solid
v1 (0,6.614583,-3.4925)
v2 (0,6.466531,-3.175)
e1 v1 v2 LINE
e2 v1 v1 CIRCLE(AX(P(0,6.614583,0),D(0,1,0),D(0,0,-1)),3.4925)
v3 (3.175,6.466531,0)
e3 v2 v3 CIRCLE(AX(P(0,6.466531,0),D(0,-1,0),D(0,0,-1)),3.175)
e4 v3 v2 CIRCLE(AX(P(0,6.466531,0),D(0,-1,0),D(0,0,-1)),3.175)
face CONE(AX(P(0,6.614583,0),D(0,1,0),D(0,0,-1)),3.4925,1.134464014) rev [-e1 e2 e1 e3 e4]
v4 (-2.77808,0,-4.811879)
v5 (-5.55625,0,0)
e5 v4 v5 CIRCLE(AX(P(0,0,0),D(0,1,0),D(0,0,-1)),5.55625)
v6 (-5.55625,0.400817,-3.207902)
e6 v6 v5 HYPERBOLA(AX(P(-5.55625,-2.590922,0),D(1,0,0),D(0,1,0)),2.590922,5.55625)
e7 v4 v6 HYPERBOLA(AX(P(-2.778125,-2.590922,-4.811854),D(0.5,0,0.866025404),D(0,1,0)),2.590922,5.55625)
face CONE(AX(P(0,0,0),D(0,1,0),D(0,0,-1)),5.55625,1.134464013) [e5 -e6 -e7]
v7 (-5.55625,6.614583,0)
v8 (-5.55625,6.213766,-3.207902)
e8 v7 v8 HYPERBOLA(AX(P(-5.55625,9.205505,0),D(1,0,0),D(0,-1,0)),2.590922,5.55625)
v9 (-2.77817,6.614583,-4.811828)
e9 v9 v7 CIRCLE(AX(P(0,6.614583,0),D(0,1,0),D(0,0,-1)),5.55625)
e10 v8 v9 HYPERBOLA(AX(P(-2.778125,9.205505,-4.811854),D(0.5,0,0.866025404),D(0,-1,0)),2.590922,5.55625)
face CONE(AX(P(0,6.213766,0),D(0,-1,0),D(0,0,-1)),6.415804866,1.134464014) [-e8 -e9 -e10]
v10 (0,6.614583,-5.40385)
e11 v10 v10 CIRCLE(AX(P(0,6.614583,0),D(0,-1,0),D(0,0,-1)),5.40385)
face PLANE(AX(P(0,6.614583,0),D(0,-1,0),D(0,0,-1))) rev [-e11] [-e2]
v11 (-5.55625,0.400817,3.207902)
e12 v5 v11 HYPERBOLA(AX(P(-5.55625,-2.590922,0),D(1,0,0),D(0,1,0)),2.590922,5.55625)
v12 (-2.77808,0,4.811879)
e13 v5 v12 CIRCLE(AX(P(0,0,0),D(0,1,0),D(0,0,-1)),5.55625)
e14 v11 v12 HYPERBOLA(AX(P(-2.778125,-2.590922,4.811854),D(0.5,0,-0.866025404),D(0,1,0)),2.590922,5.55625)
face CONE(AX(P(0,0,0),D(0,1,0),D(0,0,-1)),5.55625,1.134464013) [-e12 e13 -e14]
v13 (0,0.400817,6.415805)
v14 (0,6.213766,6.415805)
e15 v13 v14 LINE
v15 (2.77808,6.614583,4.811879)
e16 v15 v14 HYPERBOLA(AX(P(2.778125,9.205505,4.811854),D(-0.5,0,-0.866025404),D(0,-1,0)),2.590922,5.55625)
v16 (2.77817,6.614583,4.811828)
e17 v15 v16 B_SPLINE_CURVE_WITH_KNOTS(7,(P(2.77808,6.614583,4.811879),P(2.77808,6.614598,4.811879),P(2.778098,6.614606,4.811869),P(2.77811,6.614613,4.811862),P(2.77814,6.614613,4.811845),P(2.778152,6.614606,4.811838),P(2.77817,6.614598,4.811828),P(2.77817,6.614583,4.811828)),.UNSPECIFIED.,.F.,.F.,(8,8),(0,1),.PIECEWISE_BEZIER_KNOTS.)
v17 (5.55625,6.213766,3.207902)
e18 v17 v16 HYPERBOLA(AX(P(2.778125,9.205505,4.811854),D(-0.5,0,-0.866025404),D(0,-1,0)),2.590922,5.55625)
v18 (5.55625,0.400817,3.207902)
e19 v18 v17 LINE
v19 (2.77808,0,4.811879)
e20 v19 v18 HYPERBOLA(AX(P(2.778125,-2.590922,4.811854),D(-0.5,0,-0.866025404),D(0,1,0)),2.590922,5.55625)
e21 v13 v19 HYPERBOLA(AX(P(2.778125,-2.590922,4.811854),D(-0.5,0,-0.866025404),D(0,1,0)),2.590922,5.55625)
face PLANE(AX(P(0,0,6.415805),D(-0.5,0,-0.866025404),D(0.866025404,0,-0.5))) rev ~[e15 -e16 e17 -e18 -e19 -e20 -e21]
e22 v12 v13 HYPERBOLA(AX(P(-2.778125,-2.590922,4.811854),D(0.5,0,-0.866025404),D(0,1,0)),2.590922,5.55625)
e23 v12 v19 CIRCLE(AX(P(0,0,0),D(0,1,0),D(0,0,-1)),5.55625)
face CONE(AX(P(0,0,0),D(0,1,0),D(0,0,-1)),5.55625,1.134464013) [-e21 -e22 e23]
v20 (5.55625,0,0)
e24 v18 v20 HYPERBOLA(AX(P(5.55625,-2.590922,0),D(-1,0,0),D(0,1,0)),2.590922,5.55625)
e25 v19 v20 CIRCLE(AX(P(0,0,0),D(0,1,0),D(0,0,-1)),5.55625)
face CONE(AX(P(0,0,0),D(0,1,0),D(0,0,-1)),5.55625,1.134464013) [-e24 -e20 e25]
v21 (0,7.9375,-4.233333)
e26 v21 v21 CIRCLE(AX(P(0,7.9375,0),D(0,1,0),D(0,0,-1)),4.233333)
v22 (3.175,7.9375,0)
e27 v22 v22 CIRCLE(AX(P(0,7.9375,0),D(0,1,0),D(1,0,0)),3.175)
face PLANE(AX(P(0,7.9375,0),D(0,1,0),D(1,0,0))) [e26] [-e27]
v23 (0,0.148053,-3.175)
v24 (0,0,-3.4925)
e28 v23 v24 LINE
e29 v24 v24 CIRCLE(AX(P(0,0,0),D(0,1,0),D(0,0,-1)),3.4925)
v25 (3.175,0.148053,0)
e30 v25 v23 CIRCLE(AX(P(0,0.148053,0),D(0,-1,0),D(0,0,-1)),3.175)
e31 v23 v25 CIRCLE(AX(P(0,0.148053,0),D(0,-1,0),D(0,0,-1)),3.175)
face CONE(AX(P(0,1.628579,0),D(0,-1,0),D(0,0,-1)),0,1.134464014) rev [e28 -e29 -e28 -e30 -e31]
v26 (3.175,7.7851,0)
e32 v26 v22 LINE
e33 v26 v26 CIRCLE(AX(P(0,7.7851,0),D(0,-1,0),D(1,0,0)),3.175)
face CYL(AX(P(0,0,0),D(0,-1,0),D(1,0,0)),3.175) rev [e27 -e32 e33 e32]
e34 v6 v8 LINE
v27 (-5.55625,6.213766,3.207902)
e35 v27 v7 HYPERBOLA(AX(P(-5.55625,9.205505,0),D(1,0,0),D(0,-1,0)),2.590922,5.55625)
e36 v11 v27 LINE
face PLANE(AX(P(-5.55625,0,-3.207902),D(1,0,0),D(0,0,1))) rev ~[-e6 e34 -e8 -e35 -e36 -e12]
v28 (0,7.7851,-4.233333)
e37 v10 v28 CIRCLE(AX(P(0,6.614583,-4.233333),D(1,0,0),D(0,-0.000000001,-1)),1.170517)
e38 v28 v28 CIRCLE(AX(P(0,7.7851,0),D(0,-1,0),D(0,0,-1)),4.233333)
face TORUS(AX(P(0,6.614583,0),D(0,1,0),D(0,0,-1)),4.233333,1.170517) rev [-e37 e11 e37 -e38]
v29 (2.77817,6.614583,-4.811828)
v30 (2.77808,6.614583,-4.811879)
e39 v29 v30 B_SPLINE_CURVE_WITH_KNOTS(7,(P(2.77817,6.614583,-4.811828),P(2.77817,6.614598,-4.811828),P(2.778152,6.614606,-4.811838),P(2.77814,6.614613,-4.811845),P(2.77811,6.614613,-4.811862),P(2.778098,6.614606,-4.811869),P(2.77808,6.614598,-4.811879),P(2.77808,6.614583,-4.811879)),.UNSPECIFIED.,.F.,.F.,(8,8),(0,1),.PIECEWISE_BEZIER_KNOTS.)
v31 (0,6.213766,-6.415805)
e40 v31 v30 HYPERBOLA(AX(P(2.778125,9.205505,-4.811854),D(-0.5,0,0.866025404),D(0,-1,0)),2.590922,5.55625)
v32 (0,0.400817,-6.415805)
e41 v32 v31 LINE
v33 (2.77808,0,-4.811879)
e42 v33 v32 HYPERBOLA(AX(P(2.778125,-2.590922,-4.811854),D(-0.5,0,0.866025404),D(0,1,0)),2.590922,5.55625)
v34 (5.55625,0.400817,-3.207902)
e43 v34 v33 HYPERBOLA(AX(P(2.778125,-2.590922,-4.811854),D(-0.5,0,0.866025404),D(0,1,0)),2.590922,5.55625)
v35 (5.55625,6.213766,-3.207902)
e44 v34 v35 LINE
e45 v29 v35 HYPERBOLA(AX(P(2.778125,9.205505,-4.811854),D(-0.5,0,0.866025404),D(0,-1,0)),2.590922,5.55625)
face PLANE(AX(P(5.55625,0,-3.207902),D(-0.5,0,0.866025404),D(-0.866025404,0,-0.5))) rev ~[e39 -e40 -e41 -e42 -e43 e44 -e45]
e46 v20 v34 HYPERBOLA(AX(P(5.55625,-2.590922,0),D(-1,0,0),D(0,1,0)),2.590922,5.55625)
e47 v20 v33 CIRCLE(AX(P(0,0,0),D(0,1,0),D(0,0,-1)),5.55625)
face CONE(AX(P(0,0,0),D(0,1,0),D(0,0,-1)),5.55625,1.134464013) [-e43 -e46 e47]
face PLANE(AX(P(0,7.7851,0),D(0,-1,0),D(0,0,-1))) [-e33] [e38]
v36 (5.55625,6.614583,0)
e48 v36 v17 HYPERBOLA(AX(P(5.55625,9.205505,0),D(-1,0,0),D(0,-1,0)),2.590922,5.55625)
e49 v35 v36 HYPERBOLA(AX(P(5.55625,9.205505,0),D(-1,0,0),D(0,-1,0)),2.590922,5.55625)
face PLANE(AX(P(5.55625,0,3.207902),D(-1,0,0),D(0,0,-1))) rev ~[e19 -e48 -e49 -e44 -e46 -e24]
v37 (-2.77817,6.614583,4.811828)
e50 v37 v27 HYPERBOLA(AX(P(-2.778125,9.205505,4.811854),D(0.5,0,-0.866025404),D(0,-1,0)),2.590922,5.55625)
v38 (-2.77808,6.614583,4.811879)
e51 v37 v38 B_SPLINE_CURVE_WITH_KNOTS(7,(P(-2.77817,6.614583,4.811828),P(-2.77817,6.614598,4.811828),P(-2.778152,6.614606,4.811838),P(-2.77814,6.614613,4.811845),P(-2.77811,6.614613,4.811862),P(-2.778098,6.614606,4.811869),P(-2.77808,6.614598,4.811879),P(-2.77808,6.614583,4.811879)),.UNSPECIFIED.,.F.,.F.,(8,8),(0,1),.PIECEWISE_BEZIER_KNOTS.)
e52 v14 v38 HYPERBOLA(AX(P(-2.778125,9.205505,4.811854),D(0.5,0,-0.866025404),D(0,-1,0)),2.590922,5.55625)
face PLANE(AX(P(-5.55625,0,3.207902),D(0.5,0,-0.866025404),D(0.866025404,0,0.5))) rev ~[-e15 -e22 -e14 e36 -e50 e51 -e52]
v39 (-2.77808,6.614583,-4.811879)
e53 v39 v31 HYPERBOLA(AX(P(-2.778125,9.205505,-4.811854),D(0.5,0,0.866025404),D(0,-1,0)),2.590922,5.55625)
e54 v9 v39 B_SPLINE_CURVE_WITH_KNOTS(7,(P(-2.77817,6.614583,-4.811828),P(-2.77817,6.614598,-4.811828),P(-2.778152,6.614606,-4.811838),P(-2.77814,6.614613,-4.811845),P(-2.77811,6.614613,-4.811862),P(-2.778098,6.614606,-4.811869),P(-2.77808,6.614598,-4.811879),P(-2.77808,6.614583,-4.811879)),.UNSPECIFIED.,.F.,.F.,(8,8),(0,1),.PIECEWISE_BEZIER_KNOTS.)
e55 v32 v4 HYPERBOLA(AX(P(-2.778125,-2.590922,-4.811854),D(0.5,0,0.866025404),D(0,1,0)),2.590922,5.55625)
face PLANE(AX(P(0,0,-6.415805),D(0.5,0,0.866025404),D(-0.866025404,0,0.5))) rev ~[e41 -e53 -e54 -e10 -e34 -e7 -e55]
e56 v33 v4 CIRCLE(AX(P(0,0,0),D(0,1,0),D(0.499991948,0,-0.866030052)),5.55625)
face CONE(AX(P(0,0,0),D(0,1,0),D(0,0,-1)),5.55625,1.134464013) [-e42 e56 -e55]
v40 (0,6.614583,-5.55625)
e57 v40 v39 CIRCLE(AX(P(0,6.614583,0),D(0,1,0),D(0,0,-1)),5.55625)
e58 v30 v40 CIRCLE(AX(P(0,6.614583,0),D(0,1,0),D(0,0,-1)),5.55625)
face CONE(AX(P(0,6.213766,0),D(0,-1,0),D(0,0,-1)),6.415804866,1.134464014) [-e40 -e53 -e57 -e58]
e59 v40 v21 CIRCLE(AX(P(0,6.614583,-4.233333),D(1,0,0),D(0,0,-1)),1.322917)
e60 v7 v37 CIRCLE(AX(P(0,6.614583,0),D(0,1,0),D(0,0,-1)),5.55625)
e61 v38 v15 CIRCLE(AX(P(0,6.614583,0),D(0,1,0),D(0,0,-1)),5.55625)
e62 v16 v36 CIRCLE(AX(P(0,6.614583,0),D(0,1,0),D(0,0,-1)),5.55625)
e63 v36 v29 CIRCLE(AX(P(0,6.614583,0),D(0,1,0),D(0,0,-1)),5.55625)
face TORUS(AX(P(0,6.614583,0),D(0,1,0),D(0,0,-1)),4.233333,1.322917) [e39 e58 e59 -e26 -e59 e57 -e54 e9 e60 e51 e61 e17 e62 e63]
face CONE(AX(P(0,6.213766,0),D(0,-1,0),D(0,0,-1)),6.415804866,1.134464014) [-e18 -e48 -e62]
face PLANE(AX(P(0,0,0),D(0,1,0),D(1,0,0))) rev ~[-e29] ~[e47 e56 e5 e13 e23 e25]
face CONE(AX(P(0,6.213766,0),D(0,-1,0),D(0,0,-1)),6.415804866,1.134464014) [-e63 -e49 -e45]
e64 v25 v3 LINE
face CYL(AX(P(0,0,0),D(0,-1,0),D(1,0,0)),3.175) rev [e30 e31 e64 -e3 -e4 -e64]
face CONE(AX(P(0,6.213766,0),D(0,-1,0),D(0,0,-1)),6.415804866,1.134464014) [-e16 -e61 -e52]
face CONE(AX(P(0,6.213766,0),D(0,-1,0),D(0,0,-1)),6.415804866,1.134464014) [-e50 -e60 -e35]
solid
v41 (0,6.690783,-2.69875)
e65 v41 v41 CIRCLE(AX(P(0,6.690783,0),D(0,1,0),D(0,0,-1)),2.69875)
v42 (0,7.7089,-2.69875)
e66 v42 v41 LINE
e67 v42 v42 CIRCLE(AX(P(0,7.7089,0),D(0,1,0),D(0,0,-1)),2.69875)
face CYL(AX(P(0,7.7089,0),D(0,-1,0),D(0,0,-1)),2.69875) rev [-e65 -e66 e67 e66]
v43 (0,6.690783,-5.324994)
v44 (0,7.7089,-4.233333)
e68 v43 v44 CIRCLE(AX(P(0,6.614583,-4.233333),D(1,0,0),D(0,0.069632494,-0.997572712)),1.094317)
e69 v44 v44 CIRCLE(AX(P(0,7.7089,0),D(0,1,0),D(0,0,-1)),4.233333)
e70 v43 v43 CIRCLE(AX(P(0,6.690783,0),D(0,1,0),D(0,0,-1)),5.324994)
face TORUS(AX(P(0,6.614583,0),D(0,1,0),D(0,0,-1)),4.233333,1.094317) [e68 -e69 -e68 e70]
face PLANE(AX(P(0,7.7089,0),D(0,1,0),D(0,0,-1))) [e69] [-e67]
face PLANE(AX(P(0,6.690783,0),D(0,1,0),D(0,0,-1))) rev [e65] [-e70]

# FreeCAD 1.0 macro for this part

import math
import FreeCAD as App
import Part
import Sketcher

V = App.Vector
Q = App.Units.Quantity


def add_polygon(sketch, points):
    """Adds a closed chain of lines whose ends are joined by coincident constraints."""
    first, n = sketch.GeometryCount, len(points)
    for a, b in zip(points, points[1:] + points[:1]):
        sketch.addGeometry(Part.LineSegment(App.Vector(*a, 0), App.Vector(*b, 0)), False)
    for i in range(n):
        sketch.addConstraint(Sketcher.Constraint("Coincident", first + i, 2, first + (i + 1) % n, 1))

doc = App.newDocument("Part")
params = doc.addObject("Spreadsheet::Sheet", "Params")
for row, (alias, value) in enumerate([
    ("sketch1_diameter", "0.25 in"),
    ("pad1_length", "0.3125 in"),
    ("sketch2_width", "0.05 in"),
    ("sketch2_height", "0.21875 in"),
    ("groove_angle", "360 deg"),
    ("sketch3_width", "0.056 in"),
    ("groove2_angle", "360 deg"),
    ("groove3_angle", "360 deg"),
    ("revolution_angle", "360 deg"),
], start=1):
    params.set(f"A{row}", alias)
    params.set(f"B{row}", "=" + value)
    params.setAlias(f"B{row}", alias)

body = doc.addObject("PartDesign::Body", "Body")

sketch1 = body.newObject("Sketcher::SketchObject", "Sketch")
sketch1.AttachmentSupport = (doc.getObject("XZ_Plane"), [""])
sketch1.MapMode = "FlatFace"
add_polygon(sketch1, [(0, -6.415805), (-5.55625, -3.207902), (-5.55625, 3.207902), (0, 6.415805), (5.55625, 3.207902), (5.55625, -3.207902)])
sketch1.addGeometry(Part.Circle(V(0, 0, 0), V(0, 0, 1), 3.175), False)
sketch1.addConstraint([
    Sketcher.Constraint("Vertical", 1),
    Sketcher.Constraint("Vertical", 4),
    Sketcher.Constraint("Coincident", 6, 3, -1, 1),
    Sketcher.Constraint("Symmetric", 0, 2, 3, 2, -1, 1),
    Sketcher.Constraint("Symmetric", 2, 2, 5, 2, -1, 1),
    Sketcher.Constraint("PointOnObject", 2, 2, -2),
    Sketcher.Constraint("Parallel", 2, 5),
    Sketcher.Constraint("Horizontal", 1, 2, 3, 2),
    Sketcher.Constraint("Diameter", 6, Q("0.25 in")),
    Sketcher.Constraint("Angle", 0, Q("150 deg")),
    Sketcher.Constraint("DistanceX", 0, 2, -1, 1, Q("0.21875 in")),
    Sketcher.Constraint("DistanceY", 1, 1, 1, 2, Q("6.415805 mm")),
])
sketch1.setExpression("Constraints[14]", "Params.sketch1_diameter")
pad1 = body.newObject("PartDesign::Pad", "Pad")
pad1.Profile = sketch1
pad1.setExpression("Length", "Params.pad1_length")
pad1.Reversed = True

sketch2 = body.newObject("Sketcher::SketchObject", "Sketch001")
sketch2.AttachmentSupport = (doc.getObject("YZ_Plane"), [""])
sketch2.MapMode = "FlatFace"
sketch2.addGeometry([
    Part.LineSegment(V(0, -5.55625, 0), V(0, 0, 0)),
    Part.LineSegment(V(0, 0, 0), V(-1.27, 0, 0)),
    Part.LineSegment(V(-1.27, 0, 0), V(-1.27, -7.685805, 0)),
    Part.LineSegment(V(-1.27, -7.685805, 0), V(9.2075, -7.685805, 0)),
    Part.LineSegment(V(9.2075, -7.685805, 0), V(9.2075, -4.233333, 0)),
    Part.LineSegment(V(9.2075, -4.233333, 0), V(7.9375, -4.233333, 0)),
    Part.ArcOfCircle(Part.Circle(V(6.614583, -4.233333, 0), V(0, 0, 1), 1.322917), math.radians(-90), math.radians(0)),
    Part.LineSegment(V(6.614583, -5.55625, 0), V(6.213766, -6.415805, 0)),
    Part.LineSegment(V(6.213766, -6.415805, 0), V(0.400817, -6.415805, 0)),
    Part.LineSegment(V(0.400817, -6.415805, 0), V(0, -5.55625, 0)),
], False)
sketch2.addConstraint([
    Sketcher.Constraint("Coincident", 0, 2, 1, 1),
    Sketcher.Constraint("Coincident", 1, 2, 2, 1),
    Sketcher.Constraint("Coincident", 2, 2, 3, 1),
    Sketcher.Constraint("Coincident", 3, 2, 4, 1),
    Sketcher.Constraint("Coincident", 4, 2, 5, 1),
    Sketcher.Constraint("Coincident", 5, 2, 6, 2),
    Sketcher.Constraint("Coincident", 6, 1, 7, 1),
    Sketcher.Constraint("Coincident", 7, 2, 8, 1),
    Sketcher.Constraint("Coincident", 8, 2, 9, 1),
    Sketcher.Constraint("Coincident", 9, 2, 0, 1),
    Sketcher.Constraint("Vertical", 0),
    Sketcher.Constraint("Horizontal", 1),
    Sketcher.Constraint("Vertical", 2),
    Sketcher.Constraint("Horizontal", 3),
    Sketcher.Constraint("Vertical", 4),
    Sketcher.Constraint("Horizontal", 5),
    Sketcher.Constraint("Horizontal", 8),
    Sketcher.Constraint("Coincident", 0, 2, -1, 1),
    Sketcher.Constraint("Horizontal", 6, 3, 4, 2),
    Sketcher.Constraint("Horizontal", 6, 1, 9, 2),
    Sketcher.Constraint("Equal", 1, 5),
    Sketcher.Constraint("Equal", 7, 9),
    Sketcher.Constraint("Angle", 7, Q("-115 deg")),
    Sketcher.Constraint("DistanceX", 1, 2, 1, 1, Q("0.05 in")),
    Sketcher.Constraint("DistanceY", 0, 1, 0, 2, Q("0.21875 in")),
    Sketcher.Constraint("DistanceY", 3, 2, 7, 2, Q("0.05 in")),
    Sketcher.Constraint("DistanceX", 3, 1, 3, 2, Q("0.4125 in")),
    Sketcher.Constraint("Radius", 6, Q("1.322917 mm")),
    Sketcher.Constraint("DistanceX", 8, 2, 8, 1, Q("5.812949 mm")),
    Sketcher.Constraint("DistanceY", 4, 1, 4, 2, Q("3.452472 mm")),
])
sketch2.setExpression("Constraints[23]", "Params.sketch2_width")
sketch2.setExpression("Constraints[24]", "Params.sketch2_height")
groove = body.newObject("PartDesign::Groove", "Groove")
groove.Profile = sketch2
groove.ReferenceAxis = (sketch2, ["H_Axis"])
groove.setExpression("Angle", "Params.groove_angle")

sketch3 = body.newObject("Sketcher::SketchObject", "Sketch002")
sketch3.AttachmentSupport = (doc.getObject("YZ_Plane"), [""])
sketch3.MapMode = "FlatFace"
sketch3.addGeometry([
    Part.LineSegment(V(6.614583, 0, 0), V(6.614583, -5.40385, 0)),
    Part.ArcOfCircle(Part.Circle(V(6.614583, -4.233333, 0), V(0, 0, 1), 1.170517), math.radians(-90), math.radians(0)),
    Part.LineSegment(V(7.7851, -4.233333, 0), V(7.7851, -2.116667, 0)),
    Part.LineSegment(V(7.7851, -2.116667, 0), V(9.2075, -2.116667, 0)),
    Part.LineSegment(V(9.2075, -2.116667, 0), V(9.2075, 0, 0)),
    Part.LineSegment(V(9.2075, 0, 0), V(6.614583, 0, 0)),
], False)
sketch3.addConstraint([
    Sketcher.Constraint("Coincident", 0, 2, 1, 1),
    Sketcher.Constraint("Tangent", 1, 2, 2, 1),
    Sketcher.Constraint("Coincident", 2, 2, 3, 1),
    Sketcher.Constraint("Coincident", 3, 2, 4, 1),
    Sketcher.Constraint("Coincident", 4, 2, 5, 1),
    Sketcher.Constraint("Coincident", 5, 2, 0, 1),
    Sketcher.Constraint("Vertical", 0),
    Sketcher.Constraint("Vertical", 2),
    Sketcher.Constraint("Horizontal", 3),
    Sketcher.Constraint("Vertical", 4),
    Sketcher.Constraint("Horizontal", 5),
    Sketcher.Constraint("PointOnObject", 4, 2, -1),
    Sketcher.Constraint("Vertical", 1, 3, 0, 2),
    Sketcher.Constraint("Equal", 2, 4),
    Sketcher.Constraint("DistanceX", 3, 1, 3, 2, Q("0.056 in")),
    Sketcher.Constraint("DistanceX", -1, 1, 1, 2, Q("0.3065 in")),
    Sketcher.Constraint("Radius", 1, Q("1.170517 mm")),
    Sketcher.Constraint("DistanceY", 0, 2, 0, 1, Q("5.40385 mm")),
])
sketch3.setExpression("Constraints[14]", "Params.sketch3_width")
groove2 = body.newObject("PartDesign::Groove", "Groove001")
groove2.Profile = sketch3
groove2.ReferenceAxis = (sketch3, ["H_Axis"])
groove2.setExpression("Angle", "Params.groove2_angle")

sketch4 = body.newObject("Sketcher::SketchObject", "Sketch003")
sketch4.AttachmentSupport = (doc.getObject("YZ_Plane"), [""])
sketch4.MapMode = "FlatFace"
add_polygon(sketch4, [(6.614583, -3.4925), (6.614583, 0), (4.986004, 0)])
add_polygon(sketch4, [(0, -3.4925), (1.628579, 0), (0, 0)])
sketch4.addConstraint([
    Sketcher.Constraint("Vertical", 0),
    Sketcher.Constraint("Horizontal", 1),
    Sketcher.Constraint("Horizontal", 4),
    Sketcher.Constraint("Vertical", 5),
    Sketcher.Constraint("Coincident", 4, 2, -1, 1),
    Sketcher.Constraint("PointOnObject", 0, 2, -1),
    Sketcher.Constraint("Horizontal", 2, 2, 5, 2),
    Sketcher.Constraint("Equal", 1, 4),
    Sketcher.Constraint("Angle", 2, Q("-65 deg")),
    Sketcher.Constraint("DistanceY", 0, 1, 0, 2, Q("0.1375 in")),
    Sketcher.Constraint("DistanceX", -1, 1, 0, 2, Q("6.614583 mm")),
])
groove3 = body.newObject("PartDesign::Groove", "Groove002")
groove3.Profile = sketch4
groove3.ReferenceAxis = (sketch4, ["H_Axis"])
groove3.setExpression("Angle", "Params.groove3_angle")
body2 = doc.addObject("PartDesign::Body", "Body001")

sketch5 = body2.newObject("Sketcher::SketchObject", "Sketch004")
sketch5.AttachmentSupport = (doc.getObject("YZ_Plane001"), [""])
sketch5.MapMode = "FlatFace"
sketch5.addGeometry([
    Part.LineSegment(V(6.690783, -2.69875, 0), V(6.690783, -5.324994, 0)),
    Part.ArcOfCircle(Part.Circle(V(6.614583, -4.233333, 0), V(0, 0, 1), 1.094317), math.radians(-86.007121), math.radians(0)),
    Part.LineSegment(V(7.7089, -4.233333, 0), V(7.7089, -2.69875, 0)),
    Part.LineSegment(V(7.7089, -2.69875, 0), V(6.690783, -2.69875, 0)),
], False)
sketch5.addConstraint([
    Sketcher.Constraint("Coincident", 0, 2, 1, 1),
    Sketcher.Constraint("Tangent", 1, 2, 2, 1),
    Sketcher.Constraint("Coincident", 2, 2, 3, 1),
    Sketcher.Constraint("Coincident", 3, 2, 0, 1),
    Sketcher.Constraint("Vertical", 0),
    Sketcher.Constraint("Vertical", 2),
    Sketcher.Constraint("Horizontal", 3),
    Sketcher.Constraint("DistanceX", 1, 3, 0, 2, Q("0.003 in")),
    Sketcher.Constraint("DistanceX", -1, 1, 1, 2, Q("0.3035 in")),
    Sketcher.Constraint("Radius", 1, Q("1.094317 mm")),
    Sketcher.Constraint("DistanceY", 0, 2, 0, 1, Q("2.626244 mm")),
    Sketcher.Constraint("DistanceY", 2, 2, -1, 1, Q("2.69875 mm")),
])
revolution = body2.newObject("PartDesign::Revolution", "Revolution")
revolution.Profile = sketch5
revolution.ReferenceAxis = (sketch5, ["H_Axis"])
revolution.setExpression("Angle", "Params.revolution_angle")

doc.recompute()
